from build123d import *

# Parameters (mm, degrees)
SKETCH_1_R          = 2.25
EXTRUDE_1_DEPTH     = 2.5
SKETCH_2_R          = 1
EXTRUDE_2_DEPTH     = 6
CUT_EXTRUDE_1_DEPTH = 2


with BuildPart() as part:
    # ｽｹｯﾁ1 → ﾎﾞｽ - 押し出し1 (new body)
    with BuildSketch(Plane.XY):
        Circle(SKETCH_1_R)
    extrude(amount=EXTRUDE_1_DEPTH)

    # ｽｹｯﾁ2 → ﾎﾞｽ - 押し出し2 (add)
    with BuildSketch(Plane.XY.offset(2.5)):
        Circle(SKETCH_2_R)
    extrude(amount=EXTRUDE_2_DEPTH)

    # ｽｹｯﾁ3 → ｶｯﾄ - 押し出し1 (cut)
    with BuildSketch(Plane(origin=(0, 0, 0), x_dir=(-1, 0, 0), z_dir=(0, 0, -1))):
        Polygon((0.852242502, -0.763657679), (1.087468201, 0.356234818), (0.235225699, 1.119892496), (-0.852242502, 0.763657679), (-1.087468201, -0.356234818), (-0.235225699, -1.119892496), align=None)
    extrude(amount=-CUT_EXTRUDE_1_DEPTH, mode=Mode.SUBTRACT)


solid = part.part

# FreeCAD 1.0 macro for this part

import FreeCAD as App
import Part
import Sketcher


def add_polygon(sketch, points):
    """Adds a closed chain of lines whose ends are joined by coincident constraints."""
    first, n = sketch.GeometryCount, len(points)
    for a, b in zip(points, points[1:] + points[:1]):
        sketch.addGeometry(Part.LineSegment(App.Vector(*a, 0), App.Vector(*b, 0)), False)
    for i in range(n):
        sketch.addConstraint(Sketcher.Constraint("Coincident", first + i, 2, first + (i + 1) % n, 1))

doc = App.newDocument("Part")
body = doc.addObject("PartDesign::Body", "Body")

# Sketch on XY plane
sketch1 = body.newObject("Sketcher::SketchObject", "Sketch")
sketch1.AttachmentSupport = (doc.getObject("XY_Plane"), [""])
sketch1.MapMode = "FlatFace"
sketch1.addGeometry(Part.Circle(App.Vector(0, 0, 0), App.Vector(0, 0, 1), 2.2), False)
sketch1.addConstraint([
    Sketcher.Constraint("Coincident", 0, 3, -1, 1),
    Sketcher.Constraint("Diameter", 0, 4.5),
])
pad1 = body.newObject("PartDesign::Pad", "Pad")
pad1.Profile = sketch1
pad1.Length = 2.5

# Sketch on XY plane
sketch2 = body.newObject("Sketcher::SketchObject", "Sketch001")
sketch2.AttachmentSupport = (doc.getObject("XY_Plane"), [""])
sketch2.MapMode = "FlatFace"
sketch2.AttachmentOffset = App.Placement(App.Vector(0, 0, 2.5), App.Rotation())
sketch2.addGeometry(Part.Circle(App.Vector(0, 0, 0), App.Vector(0, 0, 1), 1), False)
sketch2.addConstraint([
    Sketcher.Constraint("Coincident", 0, 3, -1, 1),
    Sketcher.Constraint("Diameter", 0, 2.0),
])
pad2 = body.newObject("PartDesign::Pad", "Pad001")
pad2.Profile = sketch2
pad2.Length = 6

# Sketch on XY plane
sketch3 = body.newObject("Sketcher::SketchObject", "Sketch002")
sketch3.AttachmentSupport = (doc.getObject("XY_Plane"), [""])
sketch3.MapMode = "FlatFace"
add_polygon(sketch3, [(-0.9, -0.8), (-1.1, 0.4), (-0.2, 1.1), (0.9, 0.8), (1.1, -0.4), (0.2, -1.1)])  # lines 0-5
sketch3.addConstraint([
    Sketcher.Constraint("Symmetric", 0, 2, 3, 2, -1, 1),
    Sketcher.Constraint("Symmetric", 1, 2, 4, 2, -1, 1),
    Sketcher.Constraint("Symmetric", 2, 2, 5, 2, -1, 1),
    Sketcher.Constraint("Equal", 0, 1),
    Sketcher.Constraint("Equal", 1, 2),
    Sketcher.Constraint("Distance", 0, 1.14433),
    Sketcher.Constraint("DistanceX", 0, 2, -1, 1, 1.087468),
    Sketcher.Constraint("DistanceX", 1, 2, 2, 2, 1.087468),
    Sketcher.Constraint("DistanceX", 0, 2, 2, 2, 1.939711),
])
pocket1 = body.newObject("PartDesign::Pocket", "Pocket")
pocket1.Profile = sketch3
pocket1.Length = 2
pocket1.Reversed = True

doc.recompute()
